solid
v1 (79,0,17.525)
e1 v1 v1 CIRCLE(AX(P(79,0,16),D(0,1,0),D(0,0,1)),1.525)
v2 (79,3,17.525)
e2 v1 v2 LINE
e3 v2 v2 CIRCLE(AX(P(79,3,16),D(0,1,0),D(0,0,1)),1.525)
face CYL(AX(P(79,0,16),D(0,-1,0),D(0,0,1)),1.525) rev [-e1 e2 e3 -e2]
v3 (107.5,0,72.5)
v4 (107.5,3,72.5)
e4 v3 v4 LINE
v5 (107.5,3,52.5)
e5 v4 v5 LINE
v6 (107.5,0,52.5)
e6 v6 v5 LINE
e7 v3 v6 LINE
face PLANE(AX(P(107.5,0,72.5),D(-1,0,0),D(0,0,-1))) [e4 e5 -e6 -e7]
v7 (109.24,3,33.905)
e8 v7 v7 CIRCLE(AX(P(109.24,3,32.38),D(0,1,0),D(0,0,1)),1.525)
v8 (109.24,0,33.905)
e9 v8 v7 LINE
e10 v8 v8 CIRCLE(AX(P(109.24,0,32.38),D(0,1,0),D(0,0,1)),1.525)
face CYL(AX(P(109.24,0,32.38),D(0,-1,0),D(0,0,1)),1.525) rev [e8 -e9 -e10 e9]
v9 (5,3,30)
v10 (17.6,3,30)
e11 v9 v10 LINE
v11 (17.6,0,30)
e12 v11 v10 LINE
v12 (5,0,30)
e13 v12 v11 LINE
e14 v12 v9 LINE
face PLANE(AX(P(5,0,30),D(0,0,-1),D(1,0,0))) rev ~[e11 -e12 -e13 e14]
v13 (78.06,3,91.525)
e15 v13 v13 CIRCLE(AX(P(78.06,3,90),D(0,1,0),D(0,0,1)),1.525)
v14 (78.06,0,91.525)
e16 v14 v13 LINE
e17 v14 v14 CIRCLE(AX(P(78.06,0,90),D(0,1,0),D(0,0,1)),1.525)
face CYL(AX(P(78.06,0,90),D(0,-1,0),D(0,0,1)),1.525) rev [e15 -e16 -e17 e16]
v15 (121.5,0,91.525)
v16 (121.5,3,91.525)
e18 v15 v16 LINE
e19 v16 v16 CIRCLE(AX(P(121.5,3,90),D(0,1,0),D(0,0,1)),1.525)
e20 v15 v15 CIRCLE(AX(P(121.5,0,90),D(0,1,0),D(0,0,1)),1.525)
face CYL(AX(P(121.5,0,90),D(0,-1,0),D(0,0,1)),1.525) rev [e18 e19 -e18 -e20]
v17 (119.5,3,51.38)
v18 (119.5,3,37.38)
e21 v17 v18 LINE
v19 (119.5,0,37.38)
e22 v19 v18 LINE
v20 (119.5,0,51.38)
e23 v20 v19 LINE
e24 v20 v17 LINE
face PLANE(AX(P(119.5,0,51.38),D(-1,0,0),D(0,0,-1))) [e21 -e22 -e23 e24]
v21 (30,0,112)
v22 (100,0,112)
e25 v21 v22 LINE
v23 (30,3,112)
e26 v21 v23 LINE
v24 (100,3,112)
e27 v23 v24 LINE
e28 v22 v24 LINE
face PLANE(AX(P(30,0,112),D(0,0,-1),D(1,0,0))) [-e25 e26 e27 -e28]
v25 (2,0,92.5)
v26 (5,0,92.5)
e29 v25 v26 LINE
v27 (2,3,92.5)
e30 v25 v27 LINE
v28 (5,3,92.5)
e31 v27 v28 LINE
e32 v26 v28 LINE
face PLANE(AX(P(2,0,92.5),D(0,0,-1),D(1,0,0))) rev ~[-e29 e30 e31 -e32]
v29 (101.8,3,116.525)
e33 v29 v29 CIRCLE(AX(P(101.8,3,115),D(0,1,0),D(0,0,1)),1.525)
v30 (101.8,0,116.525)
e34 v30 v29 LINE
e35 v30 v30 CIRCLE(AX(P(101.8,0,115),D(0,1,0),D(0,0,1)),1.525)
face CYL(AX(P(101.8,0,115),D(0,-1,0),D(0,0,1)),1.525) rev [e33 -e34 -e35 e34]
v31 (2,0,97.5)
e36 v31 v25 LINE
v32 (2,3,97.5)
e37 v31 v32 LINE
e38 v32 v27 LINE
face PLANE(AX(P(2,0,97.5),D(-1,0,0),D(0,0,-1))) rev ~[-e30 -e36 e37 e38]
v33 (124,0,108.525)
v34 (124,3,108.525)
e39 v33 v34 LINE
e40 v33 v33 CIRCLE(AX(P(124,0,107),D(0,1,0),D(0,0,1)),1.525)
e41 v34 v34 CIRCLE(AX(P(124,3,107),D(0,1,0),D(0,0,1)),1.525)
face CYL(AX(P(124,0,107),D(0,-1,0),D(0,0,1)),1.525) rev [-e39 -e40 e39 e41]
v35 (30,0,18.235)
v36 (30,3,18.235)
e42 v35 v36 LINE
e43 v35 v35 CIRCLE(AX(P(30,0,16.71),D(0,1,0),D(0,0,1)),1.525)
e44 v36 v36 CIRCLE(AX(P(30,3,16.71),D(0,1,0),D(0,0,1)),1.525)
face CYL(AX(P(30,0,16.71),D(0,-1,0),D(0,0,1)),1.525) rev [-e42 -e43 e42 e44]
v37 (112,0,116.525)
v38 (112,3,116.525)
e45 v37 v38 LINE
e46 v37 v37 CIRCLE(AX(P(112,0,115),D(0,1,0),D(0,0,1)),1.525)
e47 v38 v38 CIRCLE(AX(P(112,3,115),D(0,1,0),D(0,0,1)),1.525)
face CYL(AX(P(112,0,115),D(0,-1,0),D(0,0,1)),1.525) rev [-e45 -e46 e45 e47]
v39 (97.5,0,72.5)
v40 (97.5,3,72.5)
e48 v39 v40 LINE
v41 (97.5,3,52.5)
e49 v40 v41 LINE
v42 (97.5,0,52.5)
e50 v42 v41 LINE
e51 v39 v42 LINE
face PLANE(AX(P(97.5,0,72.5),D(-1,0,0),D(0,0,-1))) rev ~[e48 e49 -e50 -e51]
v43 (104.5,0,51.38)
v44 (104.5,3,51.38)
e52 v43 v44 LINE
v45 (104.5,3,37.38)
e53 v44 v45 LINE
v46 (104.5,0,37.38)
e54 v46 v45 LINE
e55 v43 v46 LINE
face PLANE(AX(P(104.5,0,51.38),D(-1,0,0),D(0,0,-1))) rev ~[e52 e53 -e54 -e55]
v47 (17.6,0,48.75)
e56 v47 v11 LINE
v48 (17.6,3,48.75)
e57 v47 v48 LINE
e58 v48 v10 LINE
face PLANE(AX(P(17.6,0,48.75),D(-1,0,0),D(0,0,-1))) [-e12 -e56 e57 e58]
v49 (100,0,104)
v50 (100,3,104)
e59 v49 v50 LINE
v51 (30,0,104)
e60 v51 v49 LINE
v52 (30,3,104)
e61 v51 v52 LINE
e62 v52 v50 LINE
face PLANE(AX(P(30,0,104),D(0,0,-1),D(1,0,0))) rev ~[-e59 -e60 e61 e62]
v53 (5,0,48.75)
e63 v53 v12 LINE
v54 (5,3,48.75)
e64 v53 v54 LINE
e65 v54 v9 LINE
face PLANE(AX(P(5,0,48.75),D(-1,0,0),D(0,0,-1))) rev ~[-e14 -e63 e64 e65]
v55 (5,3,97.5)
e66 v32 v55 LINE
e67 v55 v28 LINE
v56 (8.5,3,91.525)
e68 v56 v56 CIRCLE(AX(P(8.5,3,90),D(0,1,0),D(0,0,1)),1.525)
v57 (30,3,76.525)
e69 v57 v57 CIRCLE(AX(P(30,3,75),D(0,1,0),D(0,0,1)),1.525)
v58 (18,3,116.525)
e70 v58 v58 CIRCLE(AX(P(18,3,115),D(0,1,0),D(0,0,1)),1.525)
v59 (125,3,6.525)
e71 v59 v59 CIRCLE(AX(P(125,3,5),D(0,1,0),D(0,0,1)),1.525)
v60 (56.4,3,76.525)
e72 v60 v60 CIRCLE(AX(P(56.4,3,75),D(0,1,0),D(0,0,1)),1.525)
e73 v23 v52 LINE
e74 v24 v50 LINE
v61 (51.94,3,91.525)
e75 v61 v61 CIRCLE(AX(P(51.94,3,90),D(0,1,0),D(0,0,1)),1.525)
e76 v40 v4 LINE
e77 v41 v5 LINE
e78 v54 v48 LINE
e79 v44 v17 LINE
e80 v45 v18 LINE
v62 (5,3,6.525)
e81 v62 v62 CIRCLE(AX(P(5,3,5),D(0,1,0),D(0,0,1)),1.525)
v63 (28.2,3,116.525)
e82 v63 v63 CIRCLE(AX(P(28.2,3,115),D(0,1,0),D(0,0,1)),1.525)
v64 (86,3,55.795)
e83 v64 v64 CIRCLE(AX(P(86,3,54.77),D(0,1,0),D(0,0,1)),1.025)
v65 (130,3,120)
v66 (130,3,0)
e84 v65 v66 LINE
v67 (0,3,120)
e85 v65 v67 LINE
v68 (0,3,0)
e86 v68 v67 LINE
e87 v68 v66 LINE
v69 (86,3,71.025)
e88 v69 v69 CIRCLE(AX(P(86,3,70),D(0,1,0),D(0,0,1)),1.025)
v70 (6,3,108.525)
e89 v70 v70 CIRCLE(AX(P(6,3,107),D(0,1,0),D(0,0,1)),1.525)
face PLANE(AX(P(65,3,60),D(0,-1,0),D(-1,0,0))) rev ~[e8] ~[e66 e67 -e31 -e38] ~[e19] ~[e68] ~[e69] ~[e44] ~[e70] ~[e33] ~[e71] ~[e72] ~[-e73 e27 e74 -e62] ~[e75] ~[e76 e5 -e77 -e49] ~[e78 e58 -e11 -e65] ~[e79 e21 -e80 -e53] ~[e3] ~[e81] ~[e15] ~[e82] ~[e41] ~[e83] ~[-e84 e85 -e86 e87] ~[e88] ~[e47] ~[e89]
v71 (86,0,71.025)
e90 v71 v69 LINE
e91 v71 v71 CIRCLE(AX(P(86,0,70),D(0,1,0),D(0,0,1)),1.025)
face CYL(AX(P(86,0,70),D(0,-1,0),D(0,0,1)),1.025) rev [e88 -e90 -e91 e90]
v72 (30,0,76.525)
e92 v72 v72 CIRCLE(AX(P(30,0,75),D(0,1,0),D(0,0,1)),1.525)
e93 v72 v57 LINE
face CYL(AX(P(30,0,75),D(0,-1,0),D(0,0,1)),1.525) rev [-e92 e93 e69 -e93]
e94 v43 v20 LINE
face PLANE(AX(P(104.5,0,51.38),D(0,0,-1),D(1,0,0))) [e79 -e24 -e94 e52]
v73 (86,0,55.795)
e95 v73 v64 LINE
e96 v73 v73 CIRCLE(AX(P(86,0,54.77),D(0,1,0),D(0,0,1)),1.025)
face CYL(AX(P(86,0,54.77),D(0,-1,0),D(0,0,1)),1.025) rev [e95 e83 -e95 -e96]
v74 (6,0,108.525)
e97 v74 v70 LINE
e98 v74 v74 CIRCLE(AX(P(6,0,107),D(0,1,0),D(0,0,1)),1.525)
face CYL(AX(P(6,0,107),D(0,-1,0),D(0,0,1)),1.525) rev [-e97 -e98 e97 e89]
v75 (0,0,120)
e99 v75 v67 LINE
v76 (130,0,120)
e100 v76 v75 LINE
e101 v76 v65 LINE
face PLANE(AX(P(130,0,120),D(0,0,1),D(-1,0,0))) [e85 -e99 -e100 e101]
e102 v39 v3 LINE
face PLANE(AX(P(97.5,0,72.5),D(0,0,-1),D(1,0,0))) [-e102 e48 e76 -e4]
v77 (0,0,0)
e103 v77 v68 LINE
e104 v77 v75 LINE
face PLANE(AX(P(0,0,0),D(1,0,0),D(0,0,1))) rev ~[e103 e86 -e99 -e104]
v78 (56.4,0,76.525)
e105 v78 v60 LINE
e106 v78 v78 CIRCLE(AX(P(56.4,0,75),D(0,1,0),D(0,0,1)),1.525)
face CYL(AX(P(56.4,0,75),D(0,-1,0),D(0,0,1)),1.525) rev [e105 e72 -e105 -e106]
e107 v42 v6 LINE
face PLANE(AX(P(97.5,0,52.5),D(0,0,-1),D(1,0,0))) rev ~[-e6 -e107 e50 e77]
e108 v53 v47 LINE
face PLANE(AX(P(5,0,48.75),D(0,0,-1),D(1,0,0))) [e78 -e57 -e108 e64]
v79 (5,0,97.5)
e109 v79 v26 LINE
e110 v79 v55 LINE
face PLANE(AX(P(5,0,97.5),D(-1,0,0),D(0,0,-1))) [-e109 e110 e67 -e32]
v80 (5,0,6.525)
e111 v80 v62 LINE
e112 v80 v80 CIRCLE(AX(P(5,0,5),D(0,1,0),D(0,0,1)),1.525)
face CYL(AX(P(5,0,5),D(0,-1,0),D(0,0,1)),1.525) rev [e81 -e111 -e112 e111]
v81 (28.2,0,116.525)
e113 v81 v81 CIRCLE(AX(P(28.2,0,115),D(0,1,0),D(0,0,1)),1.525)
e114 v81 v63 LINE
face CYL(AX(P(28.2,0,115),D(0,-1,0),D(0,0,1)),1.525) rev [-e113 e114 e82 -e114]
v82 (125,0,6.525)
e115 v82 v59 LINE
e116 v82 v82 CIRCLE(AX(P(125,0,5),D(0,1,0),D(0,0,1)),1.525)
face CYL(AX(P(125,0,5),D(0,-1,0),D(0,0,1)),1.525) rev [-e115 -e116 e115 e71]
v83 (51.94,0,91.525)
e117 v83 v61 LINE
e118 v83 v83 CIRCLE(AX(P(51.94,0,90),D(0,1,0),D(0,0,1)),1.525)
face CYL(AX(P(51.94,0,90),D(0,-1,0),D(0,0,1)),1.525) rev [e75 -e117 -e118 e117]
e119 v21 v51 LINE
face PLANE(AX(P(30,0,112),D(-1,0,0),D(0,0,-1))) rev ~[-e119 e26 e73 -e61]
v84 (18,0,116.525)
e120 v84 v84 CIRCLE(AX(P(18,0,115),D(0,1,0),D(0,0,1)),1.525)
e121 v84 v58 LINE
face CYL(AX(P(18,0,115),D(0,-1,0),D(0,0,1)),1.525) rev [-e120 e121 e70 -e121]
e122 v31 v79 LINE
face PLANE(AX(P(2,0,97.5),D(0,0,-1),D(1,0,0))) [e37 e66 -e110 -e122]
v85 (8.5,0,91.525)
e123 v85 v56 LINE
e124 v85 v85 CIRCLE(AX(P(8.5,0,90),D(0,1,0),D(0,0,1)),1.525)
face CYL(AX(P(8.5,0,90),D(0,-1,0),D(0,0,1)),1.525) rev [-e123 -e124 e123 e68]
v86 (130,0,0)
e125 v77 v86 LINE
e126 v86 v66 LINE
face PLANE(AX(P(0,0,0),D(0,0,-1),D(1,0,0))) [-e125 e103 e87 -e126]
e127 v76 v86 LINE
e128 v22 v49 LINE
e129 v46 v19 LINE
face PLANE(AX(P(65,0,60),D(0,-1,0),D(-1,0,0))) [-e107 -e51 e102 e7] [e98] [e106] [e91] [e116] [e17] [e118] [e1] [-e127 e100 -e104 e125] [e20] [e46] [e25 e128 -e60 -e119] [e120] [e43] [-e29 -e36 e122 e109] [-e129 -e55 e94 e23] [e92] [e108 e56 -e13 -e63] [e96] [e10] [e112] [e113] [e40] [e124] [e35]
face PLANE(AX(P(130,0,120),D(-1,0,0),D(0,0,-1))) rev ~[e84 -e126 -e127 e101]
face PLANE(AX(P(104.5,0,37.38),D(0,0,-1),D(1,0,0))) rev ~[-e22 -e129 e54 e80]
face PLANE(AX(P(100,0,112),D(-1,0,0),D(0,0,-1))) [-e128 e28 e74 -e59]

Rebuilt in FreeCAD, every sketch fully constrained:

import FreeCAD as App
import Part
import Sketcher
Q = App.Units.Quantity

doc = App.newDocument("Part")
body = doc.addObject("PartDesign::Body", "Body")

# Sketch on XZ plane
sketch1 = doc.addObject("Sketcher::SketchObject", "Sketch")
body.addObject(sketch1)
sketch1.AttachmentSupport = (doc.XZ_Plane, [""])
sketch1.MapMode = "FlatFace"
sketch1.addGeometry([
    Part.LineSegment(App.Vector(130, 0, 0), App.Vector(0, 0, 0)),  # 0
    Part.LineSegment(App.Vector(0, 0, 0), App.Vector(0, 120, 0)),  # 1
    Part.LineSegment(App.Vector(0, 120, 0), App.Vector(130, 120, 0)),  # 2
    Part.LineSegment(App.Vector(130, 120, 0), App.Vector(130, 0, 0)),  # 3
    Part.Circle(App.Vector(112, 115, 0), App.Vector(0, 0, 1), 1.5),  # 4
    Part.Circle(App.Vector(124, 107, 0), App.Vector(0, 0, 1), 1.5),  # 5
    Part.Circle(App.Vector(101.8, 115, 0), App.Vector(0, 0, 1), 1.5),  # 6
    Part.Circle(App.Vector(121.5, 90, 0), App.Vector(0, 0, 1), 1.5),  # 7
    Part.LineSegment(App.Vector(30, 112, 0), App.Vector(30, 104, 0)),  # 8
    Part.LineSegment(App.Vector(30, 104, 0), App.Vector(100, 104, 0)),  # 9
    Part.LineSegment(App.Vector(100, 104, 0), App.Vector(100, 112, 0)),  # 10
    Part.LineSegment(App.Vector(100, 112, 0), App.Vector(30, 112, 0)),  # 11
    Part.Circle(App.Vector(78.1, 90, 0), App.Vector(0, 0, 1), 1.5),  # 12
    Part.LineSegment(App.Vector(97.5, 72.5, 0), App.Vector(97.5, 52.5, 0)),  # 13
    Part.LineSegment(App.Vector(97.5, 52.5, 0), App.Vector(107.5, 52.5, 0)),  # 14
    Part.LineSegment(App.Vector(107.5, 52.5, 0), App.Vector(107.5, 72.5, 0)),  # 15
    Part.LineSegment(App.Vector(107.5, 72.5, 0), App.Vector(97.5, 72.5, 0)),  # 16
    Part.Circle(App.Vector(86, 70, 0), App.Vector(0, 0, 1), 1),  # 17
    Part.Circle(App.Vector(51.9, 90, 0), App.Vector(0, 0, 1), 1.5),  # 18
    Part.Circle(App.Vector(28.2, 115, 0), App.Vector(0, 0, 1), 1.5),  # 19
    Part.Circle(App.Vector(18, 115, 0), App.Vector(0, 0, 1), 1.5),  # 20
    Part.Circle(App.Vector(6, 107, 0), App.Vector(0, 0, 1), 1.5),  # 21
    Part.LineSegment(App.Vector(2, 97.5, 0), App.Vector(2, 92.5, 0)),  # 22
    Part.LineSegment(App.Vector(2, 92.5, 0), App.Vector(5, 92.5, 0)),  # 23
    Part.LineSegment(App.Vector(5, 92.5, 0), App.Vector(5, 97.5, 0)),  # 24
    Part.LineSegment(App.Vector(5, 97.5, 0), App.Vector(2, 97.5, 0)),  # 25
    Part.Circle(App.Vector(8.5, 90, 0), App.Vector(0, 0, 1), 1.5),  # 26
    Part.Circle(App.Vector(56.4, 75, 0), App.Vector(0, 0, 1), 1.5),  # 27
    Part.Circle(App.Vector(30, 75, 0), App.Vector(0, 0, 1), 1.5),  # 28
    Part.LineSegment(App.Vector(104.5, 51.4, 0), App.Vector(104.5, 37.4, 0)),  # 29
    Part.LineSegment(App.Vector(104.5, 37.4, 0), App.Vector(119.5, 37.4, 0)),  # 30
    Part.LineSegment(App.Vector(119.5, 37.4, 0), App.Vector(119.5, 51.4, 0)),  # 31
    Part.LineSegment(App.Vector(119.5, 51.4, 0), App.Vector(104.5, 51.4, 0)),  # 32
    Part.Circle(App.Vector(109.2, 32.4, 0), App.Vector(0, 0, 1), 1.5),  # 33
    Part.Circle(App.Vector(86, 54.8, 0), App.Vector(0, 0, 1), 1),  # 34
    Part.Circle(App.Vector(125, 5, 0), App.Vector(0, 0, 1), 1.5),  # 35
    Part.Circle(App.Vector(79, 16, 0), App.Vector(0, 0, 1), 1.5),  # 36
    Part.LineSegment(App.Vector(5, 48.8, 0), App.Vector(5, 30, 0)),  # 37
    Part.LineSegment(App.Vector(5, 30, 0), App.Vector(17.6, 30, 0)),  # 38
    Part.LineSegment(App.Vector(17.6, 30, 0), App.Vector(17.6, 48.8, 0)),  # 39
    Part.LineSegment(App.Vector(17.6, 48.8, 0), App.Vector(5, 48.8, 0)),  # 40
    Part.Circle(App.Vector(30, 16.7, 0), App.Vector(0, 0, 1), 1.5),  # 41
    Part.Circle(App.Vector(5, 5, 0), App.Vector(0, 0, 1), 1.5),  # 42
], False)
sketch1.addConstraint([
    Sketcher.Constraint("Coincident", 0, 2, 1, 1),
    Sketcher.Constraint("Coincident", 1, 2, 2, 1),
    Sketcher.Constraint("Coincident", 2, 2, 3, 1),
    Sketcher.Constraint("Coincident", 3, 2, 0, 1),
    Sketcher.Constraint("Coincident", 8, 2, 9, 1),
    Sketcher.Constraint("Coincident", 9, 2, 10, 1),
    Sketcher.Constraint("Coincident", 10, 2, 11, 1),
    Sketcher.Constraint("Coincident", 11, 2, 8, 1),
    Sketcher.Constraint("Coincident", 13, 2, 14, 1),
    Sketcher.Constraint("Coincident", 14, 2, 15, 1),
    Sketcher.Constraint("Coincident", 15, 2, 16, 1),
    Sketcher.Constraint("Coincident", 16, 2, 13, 1),
    Sketcher.Constraint("Coincident", 22, 2, 23, 1),
    Sketcher.Constraint("Coincident", 23, 2, 24, 1),
    Sketcher.Constraint("Coincident", 24, 2, 25, 1),
    Sketcher.Constraint("Coincident", 25, 2, 22, 1),
    Sketcher.Constraint("Coincident", 29, 2, 30, 1),
    Sketcher.Constraint("Coincident", 30, 2, 31, 1),
    Sketcher.Constraint("Coincident", 31, 2, 32, 1),
    Sketcher.Constraint("Coincident", 32, 2, 29, 1),
    Sketcher.Constraint("Coincident", 37, 2, 38, 1),
    Sketcher.Constraint("Coincident", 38, 2, 39, 1),
    Sketcher.Constraint("Coincident", 39, 2, 40, 1),
    Sketcher.Constraint("Coincident", 40, 2, 37, 1),
    Sketcher.Constraint("Horizontal", 0),
    Sketcher.Constraint("Vertical", 1),
    Sketcher.Constraint("Horizontal", 2),
    Sketcher.Constraint("Vertical", 3),
    Sketcher.Constraint("Vertical", 8),
    Sketcher.Constraint("Horizontal", 9),
    Sketcher.Constraint("Vertical", 10),
    Sketcher.Constraint("Horizontal", 11),
    Sketcher.Constraint("Vertical", 13),
    Sketcher.Constraint("Horizontal", 14),
    Sketcher.Constraint("Vertical", 15),
    Sketcher.Constraint("Horizontal", 16),
    Sketcher.Constraint("Vertical", 22),
    Sketcher.Constraint("Horizontal", 23),
    Sketcher.Constraint("Vertical", 24),
    Sketcher.Constraint("Horizontal", 25),
    Sketcher.Constraint("Vertical", 29),
    Sketcher.Constraint("Horizontal", 30),
    Sketcher.Constraint("Vertical", 31),
    Sketcher.Constraint("Horizontal", 32),
    Sketcher.Constraint("Vertical", 37),
    Sketcher.Constraint("Horizontal", 38),
    Sketcher.Constraint("Vertical", 39),
    Sketcher.Constraint("Horizontal", 40),
    Sketcher.Constraint("Coincident", 0, 2, -1, 1),
    Sketcher.Constraint("Equal", 4, 5),
    Sketcher.Constraint("Equal", 5, 6),
    Sketcher.Constraint("Equal", 6, 7),
    Sketcher.Constraint("Equal", 7, 12),
    Sketcher.Constraint("Equal", 12, 18),
    Sketcher.Constraint("Equal", 18, 19),
    Sketcher.Constraint("Equal", 19, 20),
    Sketcher.Constraint("Equal", 20, 21),
    Sketcher.Constraint("Equal", 21, 26),
    Sketcher.Constraint("Equal", 26, 27),
    Sketcher.Constraint("Equal", 27, 28),
    Sketcher.Constraint("Equal", 28, 33),
    Sketcher.Constraint("Equal", 17, 34),
    Sketcher.Constraint("Equal", 33, 35),
    Sketcher.Constraint("Equal", 35, 36),
    Sketcher.Constraint("Equal", 36, 41),
    Sketcher.Constraint("Equal", 41, 42),
    Sketcher.Constraint("Horizontal", 4, 3, 6, 3),
    Sketcher.Constraint("Horizontal", 7, 3, 12, 3),
    Sketcher.Constraint("Horizontal", 12, 3, 18, 3),
    Sketcher.Constraint("Horizontal", 6, 3, 19, 3),
    Sketcher.Constraint("Horizontal", 19, 3, 20, 3),
    Sketcher.Constraint("Horizontal", 5, 3, 21, 3),
    Sketcher.Constraint("Horizontal", 18, 3, 26, 3),
    Sketcher.Constraint("Horizontal", 27, 3, 28, 3),
    Sketcher.Constraint("Horizontal", 35, 3, 42, 3),
    Sketcher.Constraint("Vertical", 17, 3, 34, 3),
    Sketcher.Constraint("Vertical", 28, 3, 41, 3),
    Sketcher.Constraint("Vertical", 41, 3, 8, 2),
    Sketcher.Constraint("Vertical", 42, 3, 23, 2),
    Sketcher.Constraint("Vertical", 24, 2, 37, 2),
    Sketcher.Constraint("Diameter", 4, Q("3.05 mm")),
    Sketcher.Constraint("Diameter", 17, Q("2.05 mm")),
    Sketcher.Constraint("DistanceX", 0, 2, 0, 1, Q("130 mm")),
    Sketcher.Constraint("DistanceX", 9, 1, 9, 2, Q("70 mm")),
    Sketcher.Constraint("DistanceX", 14, 1, 14, 2, Q("10 mm")),
    Sketcher.Constraint("DistanceX", 23, 1, 23, 2, Q("3 mm")),
    Sketcher.Constraint("DistanceX", 30, 1, 30, 2, Q("15 mm")),
    Sketcher.Constraint("DistanceY", 1, 1, 1, 2, Q("120 mm")),
    Sketcher.Constraint("DistanceY", 8, 2, 8, 1, Q("8 mm")),
    Sketcher.Constraint("DistanceY", 13, 2, 13, 1, Q("20 mm")),
    Sketcher.Constraint("DistanceY", 22, 2, 22, 1, Q("5 mm")),
    Sketcher.Constraint("DistanceY", 29, 2, 29, 1, Q("14 mm")),
    Sketcher.Constraint("DistanceX", 38, 1, 38, 2, Q("12.6 mm")),
    Sketcher.Constraint("DistanceX", -1, 1, 4, 3, Q("112 mm")),
    Sketcher.Constraint("DistanceY", -1, 1, 4, 3, Q("115 mm")),
    Sketcher.Constraint("DistanceX", -1, 1, 5, 3, Q("124 mm")),
    Sketcher.Constraint("DistanceY", -1, 1, 5, 3, Q("107 mm")),
    Sketcher.Constraint("DistanceY", -1, 1, 7, 3, Q("90 mm")),
    Sketcher.Constraint("DistanceX", -1, 1, 17, 3, Q("86 mm")),
    Sketcher.Constraint("DistanceY", -1, 1, 17, 3, Q("70 mm")),
    Sketcher.Constraint("DistanceX", -1, 1, 20, 3, Q("18 mm")),
    Sketcher.Constraint("DistanceX", -1, 1, 21, 3, Q("6 mm")),
    Sketcher.Constraint("DistanceY", -1, 1, 27, 3, Q("75 mm")),
    Sketcher.Constraint("DistanceX", -1, 1, 28, 3, Q("30 mm")),
    Sketcher.Constraint("DistanceX", -1, 1, 35, 3, Q("125 mm")),
    Sketcher.Constraint("DistanceY", -1, 1, 35, 3, Q("5 mm")),
    Sketcher.Constraint("DistanceX", -1, 1, 36, 3, Q("79 mm")),
    Sketcher.Constraint("DistanceY", -1, 1, 36, 3, Q("16 mm")),
    Sketcher.Constraint("DistanceX", -1, 1, 42, 3, Q("5 mm")),
    Sketcher.Constraint("DistanceY", -1, 1, 8, 2, Q("104 mm")),
    Sketcher.Constraint("DistanceY", -1, 1, 37, 2, Q("30 mm")),
    Sketcher.Constraint("DistanceX", 14, 2, 7, 3, Q("14 mm")),
    Sketcher.Constraint("DistanceY", 33, 3, 29, 2, Q("5 mm")),
    Sketcher.Constraint("DistanceX", 29, 2, 14, 2, Q("3 mm")),
    Sketcher.Constraint("DistanceY", 37, 2, 37, 1, Q("18.75 mm")),
    Sketcher.Constraint("DistanceX", -1, 1, 6, 3, Q("101.8 mm")),
    Sketcher.Constraint("DistanceX", -1, 1, 7, 3, Q("121.5 mm")),
    Sketcher.Constraint("DistanceX", -1, 1, 19, 3, Q("28.2 mm")),
    Sketcher.Constraint("DistanceX", -1, 1, 26, 3, Q("8.5 mm")),
    Sketcher.Constraint("DistanceX", -1, 1, 27, 3, Q("56.4 mm")),
    Sketcher.Constraint("DistanceY", -1, 1, 13, 2, Q("52.5 mm")),
    Sketcher.Constraint("DistanceY", -1, 1, 22, 2, Q("92.5 mm")),
    Sketcher.Constraint("DistanceX", -1, 1, 12, 3, Q("78.06 mm")),
    Sketcher.Constraint("DistanceX", -1, 1, 18, 3, Q("51.94 mm")),
    Sketcher.Constraint("DistanceX", -1, 1, 33, 3, Q("109.24 mm")),
    Sketcher.Constraint("DistanceY", -1, 1, 33, 3, Q("32.38 mm")),
    Sketcher.Constraint("DistanceY", -1, 1, 34, 3, Q("54.77 mm")),
    Sketcher.Constraint("DistanceY", -1, 1, 41, 3, Q("16.71 mm")),
])
pad1 = doc.addObject("PartDesign::Pad", "Pad")
body.addObject(pad1)
pad1.Profile = sketch1
pad1.Length = 3
pad1.Reversed = True

doc.recompute()
